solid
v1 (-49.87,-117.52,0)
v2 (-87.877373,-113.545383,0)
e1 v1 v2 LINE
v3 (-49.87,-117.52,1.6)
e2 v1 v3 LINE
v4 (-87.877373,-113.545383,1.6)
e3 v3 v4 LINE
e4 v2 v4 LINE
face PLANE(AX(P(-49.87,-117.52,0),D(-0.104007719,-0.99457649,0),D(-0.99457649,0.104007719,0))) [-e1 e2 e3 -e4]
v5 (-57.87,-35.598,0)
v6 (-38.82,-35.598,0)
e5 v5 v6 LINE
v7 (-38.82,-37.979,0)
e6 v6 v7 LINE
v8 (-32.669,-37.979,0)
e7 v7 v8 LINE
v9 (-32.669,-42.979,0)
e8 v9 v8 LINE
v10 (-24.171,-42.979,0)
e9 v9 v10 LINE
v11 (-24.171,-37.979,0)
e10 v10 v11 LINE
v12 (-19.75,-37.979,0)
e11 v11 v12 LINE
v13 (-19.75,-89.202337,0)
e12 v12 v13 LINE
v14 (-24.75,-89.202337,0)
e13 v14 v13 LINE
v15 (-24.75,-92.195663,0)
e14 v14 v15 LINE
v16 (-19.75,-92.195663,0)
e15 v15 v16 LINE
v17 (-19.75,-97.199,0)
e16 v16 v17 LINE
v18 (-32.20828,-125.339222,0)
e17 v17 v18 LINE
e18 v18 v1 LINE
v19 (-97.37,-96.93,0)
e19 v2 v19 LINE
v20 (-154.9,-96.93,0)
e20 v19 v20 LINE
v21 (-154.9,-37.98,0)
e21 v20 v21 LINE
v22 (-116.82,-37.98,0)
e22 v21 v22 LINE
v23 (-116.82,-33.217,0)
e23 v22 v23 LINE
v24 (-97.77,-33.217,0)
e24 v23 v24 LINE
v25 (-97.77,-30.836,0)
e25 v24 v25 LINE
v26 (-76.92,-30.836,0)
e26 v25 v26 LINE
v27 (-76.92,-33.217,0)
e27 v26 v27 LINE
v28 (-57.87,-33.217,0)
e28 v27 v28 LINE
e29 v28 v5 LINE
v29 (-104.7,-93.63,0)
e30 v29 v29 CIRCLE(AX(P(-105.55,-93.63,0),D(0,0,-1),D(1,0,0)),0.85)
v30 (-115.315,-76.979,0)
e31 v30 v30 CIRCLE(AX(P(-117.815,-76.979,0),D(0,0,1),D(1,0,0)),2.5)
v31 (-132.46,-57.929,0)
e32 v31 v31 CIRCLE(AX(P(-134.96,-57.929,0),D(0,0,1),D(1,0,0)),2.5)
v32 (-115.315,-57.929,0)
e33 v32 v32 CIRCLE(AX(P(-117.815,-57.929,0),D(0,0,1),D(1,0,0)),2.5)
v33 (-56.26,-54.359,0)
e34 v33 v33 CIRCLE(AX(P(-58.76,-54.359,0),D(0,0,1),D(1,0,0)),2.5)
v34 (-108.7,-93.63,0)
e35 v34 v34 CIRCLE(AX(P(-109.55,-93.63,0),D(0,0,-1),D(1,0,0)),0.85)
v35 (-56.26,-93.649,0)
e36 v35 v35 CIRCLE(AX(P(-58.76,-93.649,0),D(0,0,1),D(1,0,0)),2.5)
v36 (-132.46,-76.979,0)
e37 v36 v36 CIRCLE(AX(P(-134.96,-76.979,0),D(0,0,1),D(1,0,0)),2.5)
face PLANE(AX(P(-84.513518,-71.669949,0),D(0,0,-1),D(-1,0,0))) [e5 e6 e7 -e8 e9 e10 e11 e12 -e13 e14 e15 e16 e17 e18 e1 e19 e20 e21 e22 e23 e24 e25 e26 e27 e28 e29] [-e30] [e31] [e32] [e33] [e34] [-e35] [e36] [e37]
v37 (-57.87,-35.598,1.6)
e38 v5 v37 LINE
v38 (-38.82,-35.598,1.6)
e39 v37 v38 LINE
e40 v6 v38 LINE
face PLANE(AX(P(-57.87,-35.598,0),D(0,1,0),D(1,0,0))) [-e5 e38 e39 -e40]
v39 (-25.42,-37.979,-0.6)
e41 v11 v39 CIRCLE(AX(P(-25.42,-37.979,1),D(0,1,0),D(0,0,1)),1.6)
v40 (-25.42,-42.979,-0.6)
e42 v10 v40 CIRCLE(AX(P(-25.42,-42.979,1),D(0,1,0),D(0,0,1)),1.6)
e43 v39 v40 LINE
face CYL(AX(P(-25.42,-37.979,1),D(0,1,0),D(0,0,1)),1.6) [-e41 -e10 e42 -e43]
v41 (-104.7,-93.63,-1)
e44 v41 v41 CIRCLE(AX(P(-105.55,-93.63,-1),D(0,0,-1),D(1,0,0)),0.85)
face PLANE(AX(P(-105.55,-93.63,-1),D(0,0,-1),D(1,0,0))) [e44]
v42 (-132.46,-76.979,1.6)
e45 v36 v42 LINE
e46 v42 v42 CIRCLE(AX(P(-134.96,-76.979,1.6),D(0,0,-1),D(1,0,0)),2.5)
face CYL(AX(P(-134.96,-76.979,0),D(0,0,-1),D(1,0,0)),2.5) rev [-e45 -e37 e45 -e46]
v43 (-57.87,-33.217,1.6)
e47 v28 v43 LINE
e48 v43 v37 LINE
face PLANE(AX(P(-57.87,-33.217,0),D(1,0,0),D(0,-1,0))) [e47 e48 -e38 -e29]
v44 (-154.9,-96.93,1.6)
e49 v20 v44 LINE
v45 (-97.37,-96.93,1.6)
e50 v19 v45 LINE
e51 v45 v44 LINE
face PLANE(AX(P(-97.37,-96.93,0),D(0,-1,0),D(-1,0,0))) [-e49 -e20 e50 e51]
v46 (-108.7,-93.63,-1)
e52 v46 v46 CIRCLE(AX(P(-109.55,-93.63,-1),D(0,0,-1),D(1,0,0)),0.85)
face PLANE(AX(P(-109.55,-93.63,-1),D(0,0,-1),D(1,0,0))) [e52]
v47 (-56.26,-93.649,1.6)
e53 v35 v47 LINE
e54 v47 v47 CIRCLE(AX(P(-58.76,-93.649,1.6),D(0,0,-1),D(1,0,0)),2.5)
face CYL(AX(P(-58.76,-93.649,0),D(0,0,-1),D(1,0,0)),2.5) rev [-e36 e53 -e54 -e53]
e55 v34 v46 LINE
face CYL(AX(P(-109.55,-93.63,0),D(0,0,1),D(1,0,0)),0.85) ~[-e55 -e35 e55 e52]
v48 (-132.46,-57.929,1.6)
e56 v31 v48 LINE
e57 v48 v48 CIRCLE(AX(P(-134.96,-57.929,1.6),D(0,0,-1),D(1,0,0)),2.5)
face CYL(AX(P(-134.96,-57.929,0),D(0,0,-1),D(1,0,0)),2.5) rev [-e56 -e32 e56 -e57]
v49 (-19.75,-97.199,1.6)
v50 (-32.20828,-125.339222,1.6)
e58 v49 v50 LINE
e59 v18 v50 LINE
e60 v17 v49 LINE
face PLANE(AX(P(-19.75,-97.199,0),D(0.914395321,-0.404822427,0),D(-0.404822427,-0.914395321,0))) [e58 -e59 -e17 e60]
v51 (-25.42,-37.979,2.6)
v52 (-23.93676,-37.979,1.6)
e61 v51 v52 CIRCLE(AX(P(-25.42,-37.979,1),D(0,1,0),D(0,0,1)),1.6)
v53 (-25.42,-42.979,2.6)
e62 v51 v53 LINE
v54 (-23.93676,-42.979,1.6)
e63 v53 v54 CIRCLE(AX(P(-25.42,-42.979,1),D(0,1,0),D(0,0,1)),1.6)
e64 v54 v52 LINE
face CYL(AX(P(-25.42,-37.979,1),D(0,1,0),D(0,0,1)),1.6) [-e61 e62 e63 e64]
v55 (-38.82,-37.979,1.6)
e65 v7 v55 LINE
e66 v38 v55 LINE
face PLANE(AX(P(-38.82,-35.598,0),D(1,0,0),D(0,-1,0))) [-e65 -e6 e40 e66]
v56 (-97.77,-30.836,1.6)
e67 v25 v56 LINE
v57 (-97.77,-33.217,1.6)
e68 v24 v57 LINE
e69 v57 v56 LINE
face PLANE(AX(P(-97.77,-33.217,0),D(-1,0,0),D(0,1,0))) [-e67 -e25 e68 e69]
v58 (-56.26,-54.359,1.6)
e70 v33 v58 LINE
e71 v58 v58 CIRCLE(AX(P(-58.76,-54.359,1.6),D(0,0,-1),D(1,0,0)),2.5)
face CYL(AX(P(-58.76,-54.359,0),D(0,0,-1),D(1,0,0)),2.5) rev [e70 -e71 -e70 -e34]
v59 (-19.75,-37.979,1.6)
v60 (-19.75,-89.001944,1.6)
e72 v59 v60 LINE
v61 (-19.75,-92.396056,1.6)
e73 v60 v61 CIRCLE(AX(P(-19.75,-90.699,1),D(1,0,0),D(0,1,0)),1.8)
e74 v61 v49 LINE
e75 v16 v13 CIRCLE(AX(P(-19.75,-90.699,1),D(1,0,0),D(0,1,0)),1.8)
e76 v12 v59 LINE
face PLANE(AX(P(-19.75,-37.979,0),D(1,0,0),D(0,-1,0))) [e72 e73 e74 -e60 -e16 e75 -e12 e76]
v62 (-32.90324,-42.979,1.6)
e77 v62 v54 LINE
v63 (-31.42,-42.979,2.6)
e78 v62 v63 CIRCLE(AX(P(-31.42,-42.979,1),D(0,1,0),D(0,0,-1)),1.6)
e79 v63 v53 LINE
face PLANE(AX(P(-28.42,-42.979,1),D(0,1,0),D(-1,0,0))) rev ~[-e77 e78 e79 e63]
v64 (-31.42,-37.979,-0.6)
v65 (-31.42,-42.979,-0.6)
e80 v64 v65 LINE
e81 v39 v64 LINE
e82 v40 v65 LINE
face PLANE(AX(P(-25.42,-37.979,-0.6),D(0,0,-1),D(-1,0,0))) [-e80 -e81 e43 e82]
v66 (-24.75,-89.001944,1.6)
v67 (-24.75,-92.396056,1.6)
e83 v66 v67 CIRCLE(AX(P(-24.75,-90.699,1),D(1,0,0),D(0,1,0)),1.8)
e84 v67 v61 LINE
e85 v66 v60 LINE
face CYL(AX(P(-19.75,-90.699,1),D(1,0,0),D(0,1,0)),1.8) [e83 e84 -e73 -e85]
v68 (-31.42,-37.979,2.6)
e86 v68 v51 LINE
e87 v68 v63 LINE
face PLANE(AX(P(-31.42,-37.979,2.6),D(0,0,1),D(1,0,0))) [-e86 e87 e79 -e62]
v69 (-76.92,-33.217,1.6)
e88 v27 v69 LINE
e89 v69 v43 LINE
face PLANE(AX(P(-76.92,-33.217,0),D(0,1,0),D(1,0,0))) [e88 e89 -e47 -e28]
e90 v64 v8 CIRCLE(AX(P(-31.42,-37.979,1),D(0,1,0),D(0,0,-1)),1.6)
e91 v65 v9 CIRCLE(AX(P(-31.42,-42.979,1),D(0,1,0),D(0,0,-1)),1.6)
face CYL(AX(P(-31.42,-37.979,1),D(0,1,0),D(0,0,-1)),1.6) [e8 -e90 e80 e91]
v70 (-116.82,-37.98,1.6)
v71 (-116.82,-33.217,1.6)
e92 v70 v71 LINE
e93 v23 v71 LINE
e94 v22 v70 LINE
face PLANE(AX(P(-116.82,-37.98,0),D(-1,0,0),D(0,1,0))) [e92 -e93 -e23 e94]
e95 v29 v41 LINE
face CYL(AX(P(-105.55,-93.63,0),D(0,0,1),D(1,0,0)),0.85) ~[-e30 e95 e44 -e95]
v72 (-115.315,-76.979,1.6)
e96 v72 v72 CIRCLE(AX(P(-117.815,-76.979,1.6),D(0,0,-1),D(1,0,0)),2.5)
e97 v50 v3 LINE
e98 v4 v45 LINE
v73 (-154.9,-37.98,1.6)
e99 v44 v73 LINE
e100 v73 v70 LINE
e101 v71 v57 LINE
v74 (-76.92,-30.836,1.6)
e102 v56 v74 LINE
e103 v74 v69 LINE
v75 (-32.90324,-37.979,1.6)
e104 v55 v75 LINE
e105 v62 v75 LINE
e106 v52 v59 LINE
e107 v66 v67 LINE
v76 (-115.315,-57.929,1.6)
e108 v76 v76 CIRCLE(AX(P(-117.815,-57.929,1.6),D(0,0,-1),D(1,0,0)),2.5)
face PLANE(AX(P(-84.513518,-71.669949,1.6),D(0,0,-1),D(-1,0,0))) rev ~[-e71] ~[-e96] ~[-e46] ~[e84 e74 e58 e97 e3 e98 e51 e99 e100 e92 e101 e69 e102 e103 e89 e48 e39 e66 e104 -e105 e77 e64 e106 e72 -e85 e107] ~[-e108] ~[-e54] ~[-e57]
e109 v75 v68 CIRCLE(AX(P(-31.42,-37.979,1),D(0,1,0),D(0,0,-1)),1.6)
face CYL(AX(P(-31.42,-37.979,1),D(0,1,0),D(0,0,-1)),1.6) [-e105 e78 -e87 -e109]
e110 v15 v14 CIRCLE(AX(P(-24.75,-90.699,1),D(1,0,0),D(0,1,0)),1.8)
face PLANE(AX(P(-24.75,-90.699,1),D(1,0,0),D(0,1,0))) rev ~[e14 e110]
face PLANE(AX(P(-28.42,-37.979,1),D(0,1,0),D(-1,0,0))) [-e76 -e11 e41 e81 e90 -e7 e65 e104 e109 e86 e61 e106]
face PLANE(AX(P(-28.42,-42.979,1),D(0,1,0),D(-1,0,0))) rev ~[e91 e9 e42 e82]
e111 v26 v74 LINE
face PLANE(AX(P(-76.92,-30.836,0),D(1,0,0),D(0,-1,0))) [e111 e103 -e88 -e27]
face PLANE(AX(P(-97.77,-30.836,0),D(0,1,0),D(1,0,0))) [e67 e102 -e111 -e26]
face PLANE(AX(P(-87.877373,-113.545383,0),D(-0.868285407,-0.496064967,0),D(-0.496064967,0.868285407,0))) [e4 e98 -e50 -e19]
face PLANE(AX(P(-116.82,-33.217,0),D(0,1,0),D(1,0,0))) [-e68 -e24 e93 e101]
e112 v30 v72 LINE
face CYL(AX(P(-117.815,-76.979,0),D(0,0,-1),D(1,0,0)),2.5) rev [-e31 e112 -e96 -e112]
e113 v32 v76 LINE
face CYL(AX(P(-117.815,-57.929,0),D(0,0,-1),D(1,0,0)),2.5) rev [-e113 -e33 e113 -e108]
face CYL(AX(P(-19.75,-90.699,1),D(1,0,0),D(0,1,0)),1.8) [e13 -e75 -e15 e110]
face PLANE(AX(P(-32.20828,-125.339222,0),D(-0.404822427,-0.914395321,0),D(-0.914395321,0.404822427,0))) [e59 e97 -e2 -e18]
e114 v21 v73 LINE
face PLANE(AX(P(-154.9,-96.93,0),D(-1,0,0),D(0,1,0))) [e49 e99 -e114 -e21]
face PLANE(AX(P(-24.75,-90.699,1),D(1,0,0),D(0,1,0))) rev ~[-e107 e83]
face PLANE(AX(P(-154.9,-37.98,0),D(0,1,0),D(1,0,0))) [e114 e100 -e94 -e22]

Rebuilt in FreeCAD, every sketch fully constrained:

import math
import FreeCAD as App
import Part
import Sketcher
Q = App.Units.Quantity

doc = App.newDocument("Part")
body = doc.addObject("PartDesign::Body", "Body")

# Sketch on XY plane
sketch1 = body.newObject("Sketcher::SketchObject", "Sketch")
sketch1.AttachmentSupport = (doc.getObject("XY_Plane"), [""])
sketch1.MapMode = "FlatFace"
sketch1.addGeometry([
    Part.LineSegment(App.Vector(-116.8, -38, 0), App.Vector(-154.9, -38, 0)),  # 0
    Part.LineSegment(App.Vector(-154.9, -38, 0), App.Vector(-154.9, -96.9, 0)),  # 1
    Part.LineSegment(App.Vector(-154.9, -96.9, 0), App.Vector(-97.4, -96.9, 0)),  # 2
    Part.LineSegment(App.Vector(-97.4, -96.9, 0), App.Vector(-87.9, -113.5, 0)),  # 3
    Part.LineSegment(App.Vector(-87.9, -113.5, 0), App.Vector(-49.9, -117.5, 0)),  # 4
    Part.LineSegment(App.Vector(-49.9, -117.5, 0), App.Vector(-32.2, -125.3, 0)),  # 5
    Part.LineSegment(App.Vector(-32.2, -125.3, 0), App.Vector(-19.8, -97.2, 0)),  # 6
    Part.LineSegment(App.Vector(-19.8, -97.2, 0), App.Vector(-19.8, -38, 0)),  # 7
    Part.LineSegment(App.Vector(-19.8, -38, 0), App.Vector(-38.8, -38, 0)),  # 8
    Part.LineSegment(App.Vector(-38.8, -38, 0), App.Vector(-38.8, -35.6, 0)),  # 9
    Part.LineSegment(App.Vector(-38.8, -35.6, 0), App.Vector(-57.9, -35.6, 0)),  # 10
    Part.LineSegment(App.Vector(-57.9, -35.6, 0), App.Vector(-57.9, -33.2, 0)),  # 11
    Part.LineSegment(App.Vector(-57.9, -33.2, 0), App.Vector(-76.9, -33.2, 0)),  # 12
    Part.LineSegment(App.Vector(-76.9, -33.2, 0), App.Vector(-76.9, -30.8, 0)),  # 13
    Part.LineSegment(App.Vector(-76.9, -30.8, 0), App.Vector(-97.8, -30.8, 0)),  # 14
    Part.LineSegment(App.Vector(-97.8, -30.8, 0), App.Vector(-97.8, -33.2, 0)),  # 15
    Part.LineSegment(App.Vector(-97.8, -33.2, 0), App.Vector(-116.8, -33.2, 0)),  # 16
    Part.LineSegment(App.Vector(-116.8, -33.2, 0), App.Vector(-116.8, -38, 0)),  # 17
], False)
sketch1.addConstraint([
    Sketcher.Constraint("Coincident", 0, 2, 1, 1),
    Sketcher.Constraint("Coincident", 1, 2, 2, 1),
    Sketcher.Constraint("Coincident", 2, 2, 3, 1),
    Sketcher.Constraint("Coincident", 3, 2, 4, 1),
    Sketcher.Constraint("Coincident", 4, 2, 5, 1),
    Sketcher.Constraint("Coincident", 5, 2, 6, 1),
    Sketcher.Constraint("Coincident", 6, 2, 7, 1),
    Sketcher.Constraint("Coincident", 7, 2, 8, 1),
    Sketcher.Constraint("Coincident", 8, 2, 9, 1),
    Sketcher.Constraint("Coincident", 9, 2, 10, 1),
    Sketcher.Constraint("Coincident", 10, 2, 11, 1),
    Sketcher.Constraint("Coincident", 11, 2, 12, 1),
    Sketcher.Constraint("Coincident", 12, 2, 13, 1),
    Sketcher.Constraint("Coincident", 13, 2, 14, 1),
    Sketcher.Constraint("Coincident", 14, 2, 15, 1),
    Sketcher.Constraint("Coincident", 15, 2, 16, 1),
    Sketcher.Constraint("Coincident", 16, 2, 17, 1),
    Sketcher.Constraint("Coincident", 17, 2, 0, 1),
    Sketcher.Constraint("Horizontal", 0),
    Sketcher.Constraint("Vertical", 1),
    Sketcher.Constraint("Horizontal", 2),
    Sketcher.Constraint("Vertical", 7),
    Sketcher.Constraint("Horizontal", 8),
    Sketcher.Constraint("Vertical", 9),
    Sketcher.Constraint("Horizontal", 10),
    Sketcher.Constraint("Vertical", 11),
    Sketcher.Constraint("Horizontal", 12),
    Sketcher.Constraint("Vertical", 13),
    Sketcher.Constraint("Horizontal", 14),
    Sketcher.Constraint("Vertical", 15),
    Sketcher.Constraint("Horizontal", 16),
    Sketcher.Constraint("Vertical", 17),
    Sketcher.Constraint("Perpendicular", 5, 6),
    Sketcher.Constraint("Horizontal", 12, 2, 15, 2),
    Sketcher.Constraint("Equal", 10, 12),
    Sketcher.Constraint("Equal", 12, 16),
    Sketcher.Constraint("Equal", 9, 11),
    Sketcher.Constraint("Equal", 11, 13),
    Sketcher.Constraint("DistanceX", 0, 2, 0, 1, Q("38.08 mm")),
    Sketcher.Constraint("DistanceX", 2, 1, 2, 2, Q("57.53 mm")),
    Sketcher.Constraint("DistanceX", 8, 2, 8, 1, Q("19.07 mm")),
    Sketcher.Constraint("DistanceX", 10, 2, 10, 1, Q("19.05 mm")),
    Sketcher.Constraint("DistanceX", 14, 2, 14, 1, Q("20.85 mm")),
    Sketcher.Constraint("DistanceY", 1, 2, 1, 1, Q("58.95 mm")),
    Sketcher.Constraint("DistanceY", 7, 1, 7, 2, Q("59.22 mm")),
    Sketcher.Constraint("DistanceX", 0, 2, -1, 1, Q("154.9 mm")),
    Sketcher.Constraint("Angle", 3, Q("-60.26 deg")),
    Sketcher.Constraint("Angle", 4, Q("-5.97 deg")),
    Sketcher.Constraint("Angle", 5, Q("-23.88 deg")),
    Sketcher.Constraint("DistanceX", 2, 2, 4, 2, Q("47.5 mm")),
    Sketcher.Constraint("DistanceY", 9, 1, 9, 2, Q("2.381 mm")),
    Sketcher.Constraint("DistanceY", 17, 2, 17, 1, Q("4.763 mm")),
    Sketcher.Constraint("DistanceY", 0, 2, -1, 1, Q("37.98 mm")),
    Sketcher.Constraint("DistanceY", 4, 2, -1, 1, Q("117.52 mm")),
])
pad1 = body.newObject("PartDesign::Pad", "Pad")
pad1.Profile = sketch1
pad1.Length = 1.6

# Sketch on XY plane
sketch2 = body.newObject("Sketcher::SketchObject", "Sketch001")
sketch2.AttachmentSupport = (doc.getObject("XY_Plane"), [""])
sketch2.MapMode = "FlatFace"
sketch2.addGeometry([
    Part.Circle(App.Vector(-135, -57.9, 0), App.Vector(0, 0, 1), 2.5),  # 0
    Part.Circle(App.Vector(-117.8, -57.9, 0), App.Vector(0, 0, 1), 2.5),  # 1
    Part.Circle(App.Vector(-58.8, -54.4, 0), App.Vector(0, 0, 1), 2.5),  # 2
    Part.Circle(App.Vector(-58.8, -93.6, 0), App.Vector(0, 0, 1), 2.5),  # 3
    Part.Circle(App.Vector(-117.8, -77, 0), App.Vector(0, 0, 1), 2.5),  # 4
    Part.Circle(App.Vector(-135, -77, 0), App.Vector(0, 0, 1), 2.5),  # 5
], False)
sketch2.addConstraint([
    Sketcher.Constraint("Equal", 0, 1),
    Sketcher.Constraint("Equal", 1, 2),
    Sketcher.Constraint("Equal", 2, 3),
    Sketcher.Constraint("Equal", 3, 4),
    Sketcher.Constraint("Equal", 4, 5),
    Sketcher.Constraint("Horizontal", 0, 3, 1, 3),
    Sketcher.Constraint("Horizontal", 4, 3, 5, 3),
    Sketcher.Constraint("Vertical", 2, 3, 3, 3),
    Sketcher.Constraint("Vertical", 1, 3, 4, 3),
    Sketcher.Constraint("Vertical", 0, 3, 5, 3),
    Sketcher.Constraint("Diameter", 0, Q("5 mm")),
    Sketcher.Constraint("DistanceX", 0, 3, 2, 3, Q("76.2 mm")),
    Sketcher.Constraint("DistanceX", 0, 3, -1, 1, Q("134.96 mm")),
    Sketcher.Constraint("DistanceY", 1, 3, 2, 3, Q("3.57 mm")),
    Sketcher.Constraint("DistanceY", 3, 3, 2, 3, Q("39.29 mm")),
    Sketcher.Constraint("DistanceY", 4, 3, 1, 3, Q("19.05 mm")),
    Sketcher.Constraint("DistanceY", 0, 3, -1, 1, Q("57.929 mm")),
    Sketcher.Constraint("DistanceX", 1, 3, -1, 1, Q("117.815 mm")),
])
pocket1 = body.newObject("PartDesign::Pocket", "Pocket")
pocket1.Profile = sketch2
pocket1.Length = 2
pocket1.Reversed = True

# Sketch on YZ plane
sketch3 = body.newObject("Sketcher::SketchObject", "Sketch002")
sketch3.AttachmentSupport = (doc.getObject("YZ_Plane"), [""])
sketch3.MapMode = "FlatFace"
sketch3.AttachmentOffset = App.Placement(App.Vector(0, 0, -19.75), App.Rotation())
sketch3.addGeometry(Part.Circle(App.Vector(-90.7, 1, 0), App.Vector(0, 0, 1), 1.8), False)
sketch3.addConstraint([
    Sketcher.Constraint("Diameter", 0, Q("3.6 mm")),
    Sketcher.Constraint("DistanceY", -1, 1, 0, 3, Q("1 mm")),
    Sketcher.Constraint("DistanceX", 0, 3, -1, 1, Q("90.699 mm")),
])
pad2 = body.newObject("PartDesign::Pad", "Pad001")
pad2.Profile = sketch3
pad2.Length = 5
pad2.Reversed = True

# Sketch on XZ plane
sketch4 = body.newObject("Sketcher::SketchObject", "Sketch003")
sketch4.AttachmentSupport = (doc.getObject("XZ_Plane"), [""])
sketch4.MapMode = "FlatFace"
sketch4.AttachmentOffset = App.Placement(App.Vector(0, 0, 37.979), App.Rotation())
sketch4.addGeometry([
    Part.ArcOfCircle(Part.Circle(App.Vector(-25.4, 1, 0), App.Vector(0, 0, 1), 1.6), math.radians(-90), math.radians(90)),
    Part.LineSegment(App.Vector(-25.4, -0.6, 0), App.Vector(-31.4, -0.6, 0)),
    Part.ArcOfCircle(Part.Circle(App.Vector(-31.4, 1, 0), App.Vector(0, 0, 1), 1.6), math.radians(90), math.radians(270)),
    Part.LineSegment(App.Vector(-31.4, 2.6, 0), App.Vector(-25.4, 2.6, 0)),
], False)
sketch4.addConstraint([
    Sketcher.Constraint("Tangent", 0, 1, 1, 1),
    Sketcher.Constraint("Tangent", 1, 2, 2, 2),
    Sketcher.Constraint("Tangent", 2, 1, 3, 1),
    Sketcher.Constraint("Tangent", 3, 2, 0, 2),
    Sketcher.Constraint("Horizontal", 1),
    Sketcher.Constraint("Horizontal", 3),
    Sketcher.Constraint("Radius", 0, Q("1.6 mm")),
    Sketcher.Constraint("DistanceX", 1, 2, 1, 1, Q("6 mm")),
    Sketcher.Constraint("DistanceY", -1, 1, 0, 3, Q("1 mm")),
    Sketcher.Constraint("DistanceX", 0, 3, -1, 1, Q("25.42 mm")),
])
pad3 = body.newObject("PartDesign::Pad", "Pad002")
pad3.Profile = sketch4
pad3.Length = 5

# Sketch on XY plane
sketch5 = body.newObject("Sketcher::SketchObject", "Sketch004")
sketch5.AttachmentSupport = (doc.getObject("XY_Plane"), [""])
sketch5.MapMode = "FlatFace"
sketch5.addGeometry([
    Part.Circle(App.Vector(-105.5, -93.6, 0), App.Vector(0, 0, 1), 0.8),
    Part.Circle(App.Vector(-109.5, -93.6, 0), App.Vector(0, 0, 1), 0.8),
], False)
sketch5.addConstraint([
    Sketcher.Constraint("Equal", 0, 1),
    Sketcher.Constraint("Horizontal", 0, 3, 1, 3),
    Sketcher.Constraint("Diameter", 0, Q("1.7 mm")),
    Sketcher.Constraint("DistanceX", 1, 3, 0, 3, Q("4 mm")),
    Sketcher.Constraint("DistanceX", 0, 3, -1, 1, Q("105.55 mm")),
    Sketcher.Constraint("DistanceY", 0, 3, -1, 1, Q("93.63 mm")),
])
pad4 = body.newObject("PartDesign::Pad", "Pad003")
pad4.Profile = sketch5
pad4.Length = 1
pad4.Reversed = True

doc.recompute()
